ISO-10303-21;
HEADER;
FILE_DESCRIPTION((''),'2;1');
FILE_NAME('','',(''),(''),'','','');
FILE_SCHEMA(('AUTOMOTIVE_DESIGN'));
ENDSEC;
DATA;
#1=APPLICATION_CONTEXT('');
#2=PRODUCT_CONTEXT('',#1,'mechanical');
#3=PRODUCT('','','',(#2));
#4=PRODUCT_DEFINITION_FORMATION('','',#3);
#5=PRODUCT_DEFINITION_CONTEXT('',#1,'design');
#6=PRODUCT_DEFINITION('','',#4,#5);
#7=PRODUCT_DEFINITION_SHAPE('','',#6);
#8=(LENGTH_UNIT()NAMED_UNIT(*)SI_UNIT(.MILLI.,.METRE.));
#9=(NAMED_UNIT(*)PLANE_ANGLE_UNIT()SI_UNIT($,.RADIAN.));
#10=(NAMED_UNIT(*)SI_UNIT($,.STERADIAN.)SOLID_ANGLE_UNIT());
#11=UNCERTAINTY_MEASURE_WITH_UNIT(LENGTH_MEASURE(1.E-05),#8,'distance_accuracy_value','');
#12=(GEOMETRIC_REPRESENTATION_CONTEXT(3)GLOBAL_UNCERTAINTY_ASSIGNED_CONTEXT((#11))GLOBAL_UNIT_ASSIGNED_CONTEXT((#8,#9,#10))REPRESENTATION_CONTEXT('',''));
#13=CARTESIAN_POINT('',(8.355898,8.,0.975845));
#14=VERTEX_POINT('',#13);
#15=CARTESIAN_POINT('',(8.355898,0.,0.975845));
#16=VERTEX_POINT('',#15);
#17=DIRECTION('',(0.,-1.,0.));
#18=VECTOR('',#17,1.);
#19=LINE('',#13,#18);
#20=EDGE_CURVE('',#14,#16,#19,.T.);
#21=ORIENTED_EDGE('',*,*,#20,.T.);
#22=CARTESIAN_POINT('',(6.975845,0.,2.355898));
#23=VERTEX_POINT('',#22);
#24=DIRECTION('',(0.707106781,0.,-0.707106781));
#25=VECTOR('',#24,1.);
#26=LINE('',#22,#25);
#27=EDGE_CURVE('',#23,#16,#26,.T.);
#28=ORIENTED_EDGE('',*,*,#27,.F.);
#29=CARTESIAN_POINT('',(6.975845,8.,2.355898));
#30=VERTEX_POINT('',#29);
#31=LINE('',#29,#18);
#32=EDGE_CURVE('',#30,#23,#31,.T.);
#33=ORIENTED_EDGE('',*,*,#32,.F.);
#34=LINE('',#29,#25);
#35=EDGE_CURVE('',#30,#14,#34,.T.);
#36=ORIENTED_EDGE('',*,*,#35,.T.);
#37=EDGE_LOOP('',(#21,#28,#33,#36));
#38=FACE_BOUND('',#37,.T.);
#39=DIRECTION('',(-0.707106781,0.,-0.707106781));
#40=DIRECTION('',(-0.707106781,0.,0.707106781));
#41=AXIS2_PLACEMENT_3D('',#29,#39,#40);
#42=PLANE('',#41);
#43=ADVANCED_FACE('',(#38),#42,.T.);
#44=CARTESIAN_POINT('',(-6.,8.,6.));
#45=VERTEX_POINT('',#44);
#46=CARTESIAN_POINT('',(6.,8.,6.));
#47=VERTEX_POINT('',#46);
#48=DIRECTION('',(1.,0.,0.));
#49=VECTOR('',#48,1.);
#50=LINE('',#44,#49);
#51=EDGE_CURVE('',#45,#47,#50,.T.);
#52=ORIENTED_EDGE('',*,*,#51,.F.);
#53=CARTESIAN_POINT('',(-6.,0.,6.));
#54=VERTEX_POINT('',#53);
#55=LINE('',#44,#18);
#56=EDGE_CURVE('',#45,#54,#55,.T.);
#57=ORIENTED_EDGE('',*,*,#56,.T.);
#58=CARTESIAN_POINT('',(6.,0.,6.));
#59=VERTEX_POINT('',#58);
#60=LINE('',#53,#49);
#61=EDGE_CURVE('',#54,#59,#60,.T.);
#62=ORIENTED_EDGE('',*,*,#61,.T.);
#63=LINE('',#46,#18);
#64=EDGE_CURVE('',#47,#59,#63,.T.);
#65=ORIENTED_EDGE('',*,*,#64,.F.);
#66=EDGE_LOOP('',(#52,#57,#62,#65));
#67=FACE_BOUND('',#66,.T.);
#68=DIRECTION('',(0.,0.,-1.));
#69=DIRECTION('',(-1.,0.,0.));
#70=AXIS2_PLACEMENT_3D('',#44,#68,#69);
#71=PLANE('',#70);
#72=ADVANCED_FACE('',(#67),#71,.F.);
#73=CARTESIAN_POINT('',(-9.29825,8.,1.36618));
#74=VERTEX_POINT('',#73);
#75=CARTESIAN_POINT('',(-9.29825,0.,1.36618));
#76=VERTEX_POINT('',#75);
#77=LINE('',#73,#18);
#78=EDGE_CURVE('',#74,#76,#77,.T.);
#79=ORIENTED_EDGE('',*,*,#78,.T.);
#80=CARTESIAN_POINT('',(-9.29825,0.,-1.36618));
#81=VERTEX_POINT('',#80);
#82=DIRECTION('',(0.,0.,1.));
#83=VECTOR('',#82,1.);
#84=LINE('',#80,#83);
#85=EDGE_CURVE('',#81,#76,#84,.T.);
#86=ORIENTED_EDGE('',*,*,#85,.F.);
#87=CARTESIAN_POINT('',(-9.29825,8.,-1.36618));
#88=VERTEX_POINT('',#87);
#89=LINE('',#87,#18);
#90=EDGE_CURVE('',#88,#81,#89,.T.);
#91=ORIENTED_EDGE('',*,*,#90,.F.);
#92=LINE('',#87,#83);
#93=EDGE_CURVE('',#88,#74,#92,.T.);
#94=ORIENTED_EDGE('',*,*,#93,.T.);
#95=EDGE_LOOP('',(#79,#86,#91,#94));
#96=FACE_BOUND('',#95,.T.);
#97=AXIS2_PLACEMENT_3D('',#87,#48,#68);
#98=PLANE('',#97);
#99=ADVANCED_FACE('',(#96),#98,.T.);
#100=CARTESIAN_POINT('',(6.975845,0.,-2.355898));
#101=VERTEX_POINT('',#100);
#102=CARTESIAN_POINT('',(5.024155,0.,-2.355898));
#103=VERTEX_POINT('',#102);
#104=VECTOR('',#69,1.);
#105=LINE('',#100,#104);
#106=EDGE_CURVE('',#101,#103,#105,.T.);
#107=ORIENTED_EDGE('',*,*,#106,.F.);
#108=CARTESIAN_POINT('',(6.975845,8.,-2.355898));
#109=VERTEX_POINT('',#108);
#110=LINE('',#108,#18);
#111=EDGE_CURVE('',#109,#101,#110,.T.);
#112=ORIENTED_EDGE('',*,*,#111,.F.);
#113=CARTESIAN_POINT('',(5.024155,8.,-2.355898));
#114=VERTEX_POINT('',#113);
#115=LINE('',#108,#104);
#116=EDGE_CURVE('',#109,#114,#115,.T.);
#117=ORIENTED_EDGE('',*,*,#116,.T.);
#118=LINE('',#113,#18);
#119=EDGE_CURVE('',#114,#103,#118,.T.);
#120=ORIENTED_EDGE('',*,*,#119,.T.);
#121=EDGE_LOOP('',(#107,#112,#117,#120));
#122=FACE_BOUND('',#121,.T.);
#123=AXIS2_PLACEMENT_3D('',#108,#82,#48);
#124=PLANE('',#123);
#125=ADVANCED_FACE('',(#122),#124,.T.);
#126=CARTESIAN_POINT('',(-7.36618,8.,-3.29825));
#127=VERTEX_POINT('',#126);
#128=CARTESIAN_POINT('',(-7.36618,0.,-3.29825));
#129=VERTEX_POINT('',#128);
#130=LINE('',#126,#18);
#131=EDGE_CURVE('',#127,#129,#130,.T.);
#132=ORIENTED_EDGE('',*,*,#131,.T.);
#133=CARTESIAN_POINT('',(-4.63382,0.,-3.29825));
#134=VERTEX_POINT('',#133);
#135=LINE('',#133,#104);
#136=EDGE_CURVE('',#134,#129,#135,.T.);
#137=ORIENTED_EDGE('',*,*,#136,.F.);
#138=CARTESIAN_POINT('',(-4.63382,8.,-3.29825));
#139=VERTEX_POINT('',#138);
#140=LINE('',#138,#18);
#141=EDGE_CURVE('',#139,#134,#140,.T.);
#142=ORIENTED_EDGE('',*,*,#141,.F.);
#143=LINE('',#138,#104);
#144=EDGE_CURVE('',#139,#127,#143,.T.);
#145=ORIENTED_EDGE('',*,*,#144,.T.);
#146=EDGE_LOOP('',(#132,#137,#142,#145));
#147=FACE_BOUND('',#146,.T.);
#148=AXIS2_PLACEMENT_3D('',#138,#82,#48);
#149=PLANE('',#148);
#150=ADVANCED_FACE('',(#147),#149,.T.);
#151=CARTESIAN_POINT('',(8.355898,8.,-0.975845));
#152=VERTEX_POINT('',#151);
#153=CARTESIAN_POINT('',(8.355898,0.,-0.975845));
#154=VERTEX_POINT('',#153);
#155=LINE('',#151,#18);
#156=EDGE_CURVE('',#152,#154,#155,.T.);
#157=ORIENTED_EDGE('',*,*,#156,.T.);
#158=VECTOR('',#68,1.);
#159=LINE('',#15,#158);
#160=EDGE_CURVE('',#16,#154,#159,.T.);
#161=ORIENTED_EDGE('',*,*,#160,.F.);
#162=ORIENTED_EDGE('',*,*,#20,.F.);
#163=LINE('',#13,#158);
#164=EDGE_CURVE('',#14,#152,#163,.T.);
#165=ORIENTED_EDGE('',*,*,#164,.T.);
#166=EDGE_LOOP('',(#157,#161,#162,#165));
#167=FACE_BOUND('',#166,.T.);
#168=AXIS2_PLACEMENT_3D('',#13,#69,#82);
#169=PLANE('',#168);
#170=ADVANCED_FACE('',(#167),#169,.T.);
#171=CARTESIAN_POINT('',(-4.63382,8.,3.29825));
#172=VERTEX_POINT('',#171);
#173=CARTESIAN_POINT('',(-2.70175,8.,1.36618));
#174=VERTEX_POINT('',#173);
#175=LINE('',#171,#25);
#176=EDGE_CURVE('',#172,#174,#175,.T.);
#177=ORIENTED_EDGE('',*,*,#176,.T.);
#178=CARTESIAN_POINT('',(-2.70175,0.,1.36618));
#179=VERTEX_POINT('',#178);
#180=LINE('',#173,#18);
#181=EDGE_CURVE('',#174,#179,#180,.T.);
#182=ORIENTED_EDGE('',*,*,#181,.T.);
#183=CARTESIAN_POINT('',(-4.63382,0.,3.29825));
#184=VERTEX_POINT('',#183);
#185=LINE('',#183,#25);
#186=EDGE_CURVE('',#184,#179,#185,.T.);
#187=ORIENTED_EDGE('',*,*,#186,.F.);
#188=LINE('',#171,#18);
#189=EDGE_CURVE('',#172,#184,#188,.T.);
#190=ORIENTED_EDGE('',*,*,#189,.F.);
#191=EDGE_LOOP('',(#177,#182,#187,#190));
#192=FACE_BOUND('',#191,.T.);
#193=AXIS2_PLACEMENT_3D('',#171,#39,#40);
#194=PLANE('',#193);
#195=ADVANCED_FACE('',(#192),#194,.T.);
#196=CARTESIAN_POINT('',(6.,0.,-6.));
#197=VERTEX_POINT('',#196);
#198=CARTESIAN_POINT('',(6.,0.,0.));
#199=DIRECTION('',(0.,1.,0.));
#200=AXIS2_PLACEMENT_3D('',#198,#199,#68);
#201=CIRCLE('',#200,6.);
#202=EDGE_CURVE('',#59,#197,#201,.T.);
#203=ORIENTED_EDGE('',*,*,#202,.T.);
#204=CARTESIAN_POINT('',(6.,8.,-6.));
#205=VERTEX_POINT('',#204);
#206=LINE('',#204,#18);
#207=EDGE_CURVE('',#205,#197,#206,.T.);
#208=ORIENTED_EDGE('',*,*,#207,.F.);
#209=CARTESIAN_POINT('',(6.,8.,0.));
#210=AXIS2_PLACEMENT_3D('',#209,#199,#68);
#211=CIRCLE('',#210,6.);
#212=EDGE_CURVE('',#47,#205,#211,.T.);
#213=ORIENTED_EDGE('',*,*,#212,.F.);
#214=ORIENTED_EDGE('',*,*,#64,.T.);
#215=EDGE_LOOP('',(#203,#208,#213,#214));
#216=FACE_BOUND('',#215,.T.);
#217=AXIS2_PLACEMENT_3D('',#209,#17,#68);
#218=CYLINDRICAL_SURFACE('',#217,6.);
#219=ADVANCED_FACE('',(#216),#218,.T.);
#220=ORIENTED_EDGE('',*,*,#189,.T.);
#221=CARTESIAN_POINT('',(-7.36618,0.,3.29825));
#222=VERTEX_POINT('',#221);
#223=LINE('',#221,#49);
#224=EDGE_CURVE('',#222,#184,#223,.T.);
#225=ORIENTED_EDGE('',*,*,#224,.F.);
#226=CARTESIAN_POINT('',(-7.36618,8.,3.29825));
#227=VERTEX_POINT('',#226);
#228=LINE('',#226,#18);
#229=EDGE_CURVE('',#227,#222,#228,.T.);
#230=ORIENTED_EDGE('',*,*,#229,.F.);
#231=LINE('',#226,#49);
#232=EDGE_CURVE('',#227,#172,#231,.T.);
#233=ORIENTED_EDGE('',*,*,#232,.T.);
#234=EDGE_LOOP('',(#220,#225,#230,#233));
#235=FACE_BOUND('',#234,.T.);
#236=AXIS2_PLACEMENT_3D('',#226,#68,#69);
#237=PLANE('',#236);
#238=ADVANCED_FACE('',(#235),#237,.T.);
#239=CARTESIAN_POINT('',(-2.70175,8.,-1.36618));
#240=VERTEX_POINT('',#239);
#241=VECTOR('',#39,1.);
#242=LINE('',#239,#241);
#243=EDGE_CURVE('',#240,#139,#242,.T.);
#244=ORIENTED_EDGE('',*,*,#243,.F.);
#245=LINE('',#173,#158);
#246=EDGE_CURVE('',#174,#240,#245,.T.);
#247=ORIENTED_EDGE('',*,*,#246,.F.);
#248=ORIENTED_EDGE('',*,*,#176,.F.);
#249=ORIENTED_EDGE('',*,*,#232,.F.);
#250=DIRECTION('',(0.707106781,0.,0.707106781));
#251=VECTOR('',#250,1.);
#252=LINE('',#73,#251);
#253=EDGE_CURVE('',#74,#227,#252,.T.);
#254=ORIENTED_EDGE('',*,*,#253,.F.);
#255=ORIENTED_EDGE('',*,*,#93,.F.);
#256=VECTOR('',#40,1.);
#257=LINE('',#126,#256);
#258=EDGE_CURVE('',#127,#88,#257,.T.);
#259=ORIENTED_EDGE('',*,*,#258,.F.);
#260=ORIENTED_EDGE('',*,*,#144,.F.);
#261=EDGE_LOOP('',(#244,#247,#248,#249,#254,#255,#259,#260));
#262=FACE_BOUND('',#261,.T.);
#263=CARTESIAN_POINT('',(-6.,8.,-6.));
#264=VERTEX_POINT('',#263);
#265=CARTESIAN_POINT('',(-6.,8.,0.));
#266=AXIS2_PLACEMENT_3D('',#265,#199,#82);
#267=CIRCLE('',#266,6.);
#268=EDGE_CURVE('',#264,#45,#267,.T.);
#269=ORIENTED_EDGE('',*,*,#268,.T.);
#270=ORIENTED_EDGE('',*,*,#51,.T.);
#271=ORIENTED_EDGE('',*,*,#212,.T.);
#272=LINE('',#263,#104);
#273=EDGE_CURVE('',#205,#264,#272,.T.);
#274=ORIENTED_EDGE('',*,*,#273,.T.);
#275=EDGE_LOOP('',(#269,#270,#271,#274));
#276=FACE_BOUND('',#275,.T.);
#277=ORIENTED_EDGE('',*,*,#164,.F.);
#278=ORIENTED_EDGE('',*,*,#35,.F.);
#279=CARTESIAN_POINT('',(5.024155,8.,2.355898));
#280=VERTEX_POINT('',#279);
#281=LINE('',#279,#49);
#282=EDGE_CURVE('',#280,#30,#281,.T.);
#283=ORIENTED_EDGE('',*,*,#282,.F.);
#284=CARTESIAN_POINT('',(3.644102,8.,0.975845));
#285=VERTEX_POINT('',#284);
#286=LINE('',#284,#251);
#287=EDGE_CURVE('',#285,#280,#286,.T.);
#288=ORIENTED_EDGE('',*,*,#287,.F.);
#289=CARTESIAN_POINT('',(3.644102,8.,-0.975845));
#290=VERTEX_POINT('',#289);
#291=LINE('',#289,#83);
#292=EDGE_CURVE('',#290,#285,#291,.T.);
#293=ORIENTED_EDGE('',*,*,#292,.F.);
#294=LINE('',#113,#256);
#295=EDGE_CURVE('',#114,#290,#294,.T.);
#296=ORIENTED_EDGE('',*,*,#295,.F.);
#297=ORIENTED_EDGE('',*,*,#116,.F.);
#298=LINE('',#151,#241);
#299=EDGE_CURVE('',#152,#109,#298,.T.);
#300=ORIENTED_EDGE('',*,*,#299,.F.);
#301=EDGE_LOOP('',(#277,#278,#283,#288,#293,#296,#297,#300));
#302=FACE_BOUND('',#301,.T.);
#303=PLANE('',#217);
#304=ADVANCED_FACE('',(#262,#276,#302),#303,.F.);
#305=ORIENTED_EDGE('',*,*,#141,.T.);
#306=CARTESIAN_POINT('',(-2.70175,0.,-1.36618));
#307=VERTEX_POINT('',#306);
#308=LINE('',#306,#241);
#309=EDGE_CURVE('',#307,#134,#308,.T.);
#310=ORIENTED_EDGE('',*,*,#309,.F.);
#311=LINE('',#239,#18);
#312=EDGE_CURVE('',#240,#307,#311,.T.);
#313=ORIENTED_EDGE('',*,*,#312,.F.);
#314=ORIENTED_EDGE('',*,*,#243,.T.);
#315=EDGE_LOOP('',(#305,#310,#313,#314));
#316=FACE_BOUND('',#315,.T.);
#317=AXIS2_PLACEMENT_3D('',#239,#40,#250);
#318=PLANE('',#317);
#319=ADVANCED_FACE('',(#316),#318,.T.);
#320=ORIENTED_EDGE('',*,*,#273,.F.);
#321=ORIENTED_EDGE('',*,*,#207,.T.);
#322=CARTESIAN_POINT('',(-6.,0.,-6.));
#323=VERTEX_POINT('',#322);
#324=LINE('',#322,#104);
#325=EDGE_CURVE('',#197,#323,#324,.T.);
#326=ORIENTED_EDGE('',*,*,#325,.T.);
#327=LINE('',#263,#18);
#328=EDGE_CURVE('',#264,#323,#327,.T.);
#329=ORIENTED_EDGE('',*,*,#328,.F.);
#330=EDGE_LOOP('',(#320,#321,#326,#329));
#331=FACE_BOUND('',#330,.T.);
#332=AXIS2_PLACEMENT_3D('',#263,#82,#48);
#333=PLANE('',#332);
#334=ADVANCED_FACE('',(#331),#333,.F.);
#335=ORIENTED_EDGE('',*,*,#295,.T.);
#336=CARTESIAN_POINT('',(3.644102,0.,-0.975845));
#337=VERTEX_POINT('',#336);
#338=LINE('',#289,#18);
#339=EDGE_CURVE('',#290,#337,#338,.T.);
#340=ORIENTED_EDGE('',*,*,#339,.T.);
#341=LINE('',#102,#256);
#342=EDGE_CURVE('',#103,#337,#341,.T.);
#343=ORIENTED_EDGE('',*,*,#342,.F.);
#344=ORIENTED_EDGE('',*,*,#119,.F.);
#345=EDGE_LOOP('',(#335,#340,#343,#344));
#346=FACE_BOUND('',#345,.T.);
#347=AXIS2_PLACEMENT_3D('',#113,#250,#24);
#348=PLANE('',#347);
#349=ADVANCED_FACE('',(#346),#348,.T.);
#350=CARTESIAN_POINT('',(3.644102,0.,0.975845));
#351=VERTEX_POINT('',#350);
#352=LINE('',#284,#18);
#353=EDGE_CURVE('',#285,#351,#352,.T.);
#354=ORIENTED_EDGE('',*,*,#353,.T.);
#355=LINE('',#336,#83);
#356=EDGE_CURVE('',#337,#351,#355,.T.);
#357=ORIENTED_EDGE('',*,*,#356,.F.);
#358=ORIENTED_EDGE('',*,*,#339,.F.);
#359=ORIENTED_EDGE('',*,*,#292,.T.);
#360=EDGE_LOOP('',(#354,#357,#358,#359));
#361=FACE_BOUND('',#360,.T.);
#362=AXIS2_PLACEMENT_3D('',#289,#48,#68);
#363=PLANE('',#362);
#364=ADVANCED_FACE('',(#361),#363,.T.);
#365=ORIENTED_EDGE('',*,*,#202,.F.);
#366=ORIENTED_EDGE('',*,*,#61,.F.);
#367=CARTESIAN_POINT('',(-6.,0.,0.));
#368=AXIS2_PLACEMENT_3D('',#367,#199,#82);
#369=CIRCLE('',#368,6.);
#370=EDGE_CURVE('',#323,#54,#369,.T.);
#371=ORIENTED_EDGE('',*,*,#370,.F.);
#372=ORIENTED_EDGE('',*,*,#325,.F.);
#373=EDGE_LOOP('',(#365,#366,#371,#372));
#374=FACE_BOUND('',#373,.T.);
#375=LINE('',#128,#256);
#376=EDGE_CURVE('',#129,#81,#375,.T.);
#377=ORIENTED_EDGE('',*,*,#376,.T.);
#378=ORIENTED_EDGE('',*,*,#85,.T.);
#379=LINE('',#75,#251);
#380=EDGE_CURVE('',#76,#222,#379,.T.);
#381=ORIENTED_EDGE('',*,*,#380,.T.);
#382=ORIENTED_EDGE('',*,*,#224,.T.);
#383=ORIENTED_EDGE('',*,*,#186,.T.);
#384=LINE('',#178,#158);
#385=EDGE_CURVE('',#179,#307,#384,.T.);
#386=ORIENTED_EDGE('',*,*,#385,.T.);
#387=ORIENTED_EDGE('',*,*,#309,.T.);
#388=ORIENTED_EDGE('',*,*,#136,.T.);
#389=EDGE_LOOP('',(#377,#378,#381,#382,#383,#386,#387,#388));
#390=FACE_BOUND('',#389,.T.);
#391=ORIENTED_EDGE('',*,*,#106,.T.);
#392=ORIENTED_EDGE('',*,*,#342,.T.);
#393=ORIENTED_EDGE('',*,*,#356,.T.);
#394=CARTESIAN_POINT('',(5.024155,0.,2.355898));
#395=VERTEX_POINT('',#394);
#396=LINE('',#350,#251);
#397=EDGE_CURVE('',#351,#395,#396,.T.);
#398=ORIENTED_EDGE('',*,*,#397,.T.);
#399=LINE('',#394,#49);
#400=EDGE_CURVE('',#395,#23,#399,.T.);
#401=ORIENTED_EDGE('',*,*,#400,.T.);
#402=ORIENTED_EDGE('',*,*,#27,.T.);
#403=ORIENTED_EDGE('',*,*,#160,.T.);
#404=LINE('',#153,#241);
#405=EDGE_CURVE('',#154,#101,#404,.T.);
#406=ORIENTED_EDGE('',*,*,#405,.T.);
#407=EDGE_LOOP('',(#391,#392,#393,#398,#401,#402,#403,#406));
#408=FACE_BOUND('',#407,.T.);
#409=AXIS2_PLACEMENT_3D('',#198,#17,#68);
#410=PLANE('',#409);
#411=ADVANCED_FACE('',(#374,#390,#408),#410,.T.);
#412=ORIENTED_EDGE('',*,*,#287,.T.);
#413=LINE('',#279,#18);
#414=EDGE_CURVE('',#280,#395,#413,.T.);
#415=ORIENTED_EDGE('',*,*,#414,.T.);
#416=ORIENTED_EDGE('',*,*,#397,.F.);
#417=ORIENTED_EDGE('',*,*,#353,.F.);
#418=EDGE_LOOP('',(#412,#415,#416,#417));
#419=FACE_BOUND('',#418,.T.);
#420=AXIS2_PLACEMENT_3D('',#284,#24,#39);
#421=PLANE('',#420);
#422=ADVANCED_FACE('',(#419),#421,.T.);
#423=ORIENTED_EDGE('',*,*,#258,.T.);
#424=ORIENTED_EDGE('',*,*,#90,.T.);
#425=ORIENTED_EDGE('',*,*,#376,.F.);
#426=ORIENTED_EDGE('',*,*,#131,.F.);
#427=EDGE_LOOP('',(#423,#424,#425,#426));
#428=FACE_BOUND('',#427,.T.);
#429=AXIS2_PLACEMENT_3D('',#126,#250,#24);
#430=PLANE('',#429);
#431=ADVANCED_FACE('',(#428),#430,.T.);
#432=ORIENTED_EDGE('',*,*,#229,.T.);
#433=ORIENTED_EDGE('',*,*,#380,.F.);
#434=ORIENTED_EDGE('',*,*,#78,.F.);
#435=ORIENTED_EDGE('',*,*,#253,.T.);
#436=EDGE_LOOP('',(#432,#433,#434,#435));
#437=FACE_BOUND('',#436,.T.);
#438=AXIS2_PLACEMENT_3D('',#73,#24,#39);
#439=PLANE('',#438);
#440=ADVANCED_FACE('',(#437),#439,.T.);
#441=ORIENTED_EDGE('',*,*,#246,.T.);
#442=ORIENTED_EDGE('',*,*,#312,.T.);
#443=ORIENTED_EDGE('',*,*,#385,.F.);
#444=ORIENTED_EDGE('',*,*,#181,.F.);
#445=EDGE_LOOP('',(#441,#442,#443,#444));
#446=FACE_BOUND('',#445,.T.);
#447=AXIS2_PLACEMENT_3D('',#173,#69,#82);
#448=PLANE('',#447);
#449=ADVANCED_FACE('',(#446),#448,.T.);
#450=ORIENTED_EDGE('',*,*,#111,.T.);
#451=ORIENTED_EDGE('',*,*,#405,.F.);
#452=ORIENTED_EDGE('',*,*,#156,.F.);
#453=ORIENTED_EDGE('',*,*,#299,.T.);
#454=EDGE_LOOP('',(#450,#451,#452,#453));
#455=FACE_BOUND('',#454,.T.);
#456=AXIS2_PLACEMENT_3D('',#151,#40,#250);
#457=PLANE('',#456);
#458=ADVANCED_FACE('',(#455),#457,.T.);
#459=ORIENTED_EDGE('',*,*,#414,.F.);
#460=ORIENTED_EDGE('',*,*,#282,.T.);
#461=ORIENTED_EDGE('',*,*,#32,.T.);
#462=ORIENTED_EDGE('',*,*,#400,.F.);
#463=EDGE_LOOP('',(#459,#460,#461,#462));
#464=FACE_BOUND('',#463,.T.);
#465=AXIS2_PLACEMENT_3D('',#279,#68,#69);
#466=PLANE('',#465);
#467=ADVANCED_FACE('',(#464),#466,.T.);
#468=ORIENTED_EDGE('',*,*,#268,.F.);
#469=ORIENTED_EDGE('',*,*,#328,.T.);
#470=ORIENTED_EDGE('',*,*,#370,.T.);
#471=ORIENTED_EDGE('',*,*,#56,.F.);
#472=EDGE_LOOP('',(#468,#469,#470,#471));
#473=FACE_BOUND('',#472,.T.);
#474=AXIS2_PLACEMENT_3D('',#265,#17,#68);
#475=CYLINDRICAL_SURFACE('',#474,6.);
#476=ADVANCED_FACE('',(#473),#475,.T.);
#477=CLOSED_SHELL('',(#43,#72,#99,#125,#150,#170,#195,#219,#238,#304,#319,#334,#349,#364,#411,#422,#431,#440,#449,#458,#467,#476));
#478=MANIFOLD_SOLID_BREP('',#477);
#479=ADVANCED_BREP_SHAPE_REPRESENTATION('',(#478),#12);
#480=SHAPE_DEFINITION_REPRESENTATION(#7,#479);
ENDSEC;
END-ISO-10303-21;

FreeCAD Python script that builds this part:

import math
import FreeCAD as App
import Part
import Sketcher
from FreeCAD import Vector
Q = App.Units.Quantity

doc = App.newDocument("Part")
body = doc.addObject("PartDesign::Body", "Body")

# Sketch on XZ plane
sketch1 = body.newObject("Sketcher::SketchObject", "Sketch")
sketch1.AttachmentSupport = (doc.getObject("XZ_Plane"), [""])
sketch1.MapMode = "FlatFace"
sketch1.addGeometry([
    Part.LineSegment(Vector(6, -6, 0), Vector(-6, -6, 0)),  # 0
    Part.ArcOfCircle(Part.Circle(Vector(-6, 0, 0), Vector(0, 0, 1), 6), math.radians(90), math.radians(270)),  # 1
    Part.LineSegment(Vector(-6, 6, 0), Vector(6, 6, 0)),  # 2
    Part.ArcOfCircle(Part.Circle(Vector(6, 0, 0), Vector(0, 0, 1), 6), math.radians(-90), math.radians(90)),  # 3
    Part.LineSegment(Vector(8.4, -1, 0), Vector(8.4, 1, 0)),  # 4
    Part.LineSegment(Vector(8.4, 1, 0), Vector(7, 2.4, 0)),  # 5
    Part.LineSegment(Vector(7, 2.4, 0), Vector(5, 2.4, 0)),  # 6
    Part.LineSegment(Vector(5, 2.4, 0), Vector(3.6, 1, 0)),  # 7
    Part.LineSegment(Vector(3.6, 1, 0), Vector(3.6, -1, 0)),  # 8
    Part.LineSegment(Vector(3.6, -1, 0), Vector(5, -2.4, 0)),  # 9
    Part.LineSegment(Vector(5, -2.4, 0), Vector(7, -2.4, 0)),  # 10
    Part.LineSegment(Vector(7, -2.4, 0), Vector(8.4, -1, 0)),  # 11
    Part.LineSegment(Vector(-4.6, -3.3, 0), Vector(-2.7, -1.4, 0)),  # 12
    Part.LineSegment(Vector(-2.7, -1.4, 0), Vector(-2.7, 1.4, 0)),  # 13
    Part.LineSegment(Vector(-2.7, 1.4, 0), Vector(-4.6, 3.3, 0)),  # 14
    Part.LineSegment(Vector(-4.6, 3.3, 0), Vector(-7.4, 3.3, 0)),  # 15
    Part.LineSegment(Vector(-7.4, 3.3, 0), Vector(-9.3, 1.4, 0)),  # 16
    Part.LineSegment(Vector(-9.3, 1.4, 0), Vector(-9.3, -1.4, 0)),  # 17
    Part.LineSegment(Vector(-9.3, -1.4, 0), Vector(-7.4, -3.3, 0)),  # 18
    Part.LineSegment(Vector(-7.4, -3.3, 0), Vector(-4.6, -3.3, 0)),  # 19
], False)
sketch1.addConstraint([
    Sketcher.Constraint("Tangent", 0, 2, 1, 2),
    Sketcher.Constraint("Tangent", 1, 1, 2, 1),
    Sketcher.Constraint("Tangent", 2, 2, 3, 2),
    Sketcher.Constraint("Tangent", 3, 1, 0, 1),
    Sketcher.Constraint("Coincident", 4, 2, 5, 1),
    Sketcher.Constraint("Coincident", 5, 2, 6, 1),
    Sketcher.Constraint("Coincident", 6, 2, 7, 1),
    Sketcher.Constraint("Coincident", 7, 2, 8, 1),
    Sketcher.Constraint("Coincident", 8, 2, 9, 1),
    Sketcher.Constraint("Coincident", 9, 2, 10, 1),
    Sketcher.Constraint("Coincident", 10, 2, 11, 1),
    Sketcher.Constraint("Coincident", 11, 2, 4, 1),
    Sketcher.Constraint("Coincident", 12, 2, 13, 1),
    Sketcher.Constraint("Coincident", 13, 2, 14, 1),
    Sketcher.Constraint("Coincident", 14, 2, 15, 1),
    Sketcher.Constraint("Coincident", 15, 2, 16, 1),
    Sketcher.Constraint("Coincident", 16, 2, 17, 1),
    Sketcher.Constraint("Coincident", 17, 2, 18, 1),
    Sketcher.Constraint("Coincident", 18, 2, 19, 1),
    Sketcher.Constraint("Coincident", 19, 2, 12, 1),
    Sketcher.Constraint("Horizontal", 0),
    Sketcher.Constraint("Horizontal", 2),
    Sketcher.Constraint("Vertical", 4),
    Sketcher.Constraint("Horizontal", 6),
    Sketcher.Constraint("Vertical", 8),
    Sketcher.Constraint("Horizontal", 10),
    Sketcher.Constraint("Vertical", 13),
    Sketcher.Constraint("Horizontal", 15),
    Sketcher.Constraint("Vertical", 17),
    Sketcher.Constraint("Horizontal", 19),
    Sketcher.Constraint("Symmetric", 1, 3, 3, 3, -1, 1),
    Sketcher.Constraint("Symmetric", 6, 2, 9, 2, -1),
    Sketcher.Constraint("Symmetric", 15, 2, 18, 2, -1),
    Sketcher.Constraint("Perpendicular", 5, 7),
    Sketcher.Constraint("Perpendicular", 7, 9),
    Sketcher.Constraint("Perpendicular", 9, 11),
    Sketcher.Constraint("Parallel", 11, 12),
    Sketcher.Constraint("Perpendicular", 12, 14),
    Sketcher.Constraint("Perpendicular", 14, 16),
    Sketcher.Constraint("Perpendicular", 16, 18),
    Sketcher.Constraint("Horizontal", 4, 2, 7, 2),
    Sketcher.Constraint("Horizontal", 8, 2, 11, 2),
    Sketcher.Constraint("Horizontal", 13, 2, 16, 2),
    Sketcher.Constraint("Horizontal", 12, 2, 17, 2),
    Sketcher.Constraint("Vertical", 5, 2, 10, 2),
    Sketcher.Constraint("Equal", 10, 4),
    Sketcher.Constraint("Equal", 19, 13),
    Sketcher.Constraint("Radius", 1, Q("6 mm")),
    Sketcher.Constraint("DistanceX", 0, 2, 0, 1, Q("12 mm")),
    Sketcher.Constraint("DistanceX", 6, 2, 6, 1, Q("1.95169 mm")),
    Sketcher.Constraint("DistanceX", 15, 2, 15, 1, Q("2.73236 mm")),
    Sketcher.Constraint("DistanceX", -1, 1, 4, 2, Q("8.355898 mm")),
    Sketcher.Constraint("DistanceY", -1, 1, 5, 2, Q("2.355898 mm")),
    Sketcher.Constraint("DistanceX", 16, 2, 13, 2, Q("6.596501 mm")),
    Sketcher.Constraint("DistanceX", 12, 2, -1, 1, Q("2.70175 mm")),
])
pad1 = body.newObject("PartDesign::Pad", "Pad")
pad1.Profile = sketch1
pad1.Length = 8
pad1.Reversed = True

doc.recompute()
